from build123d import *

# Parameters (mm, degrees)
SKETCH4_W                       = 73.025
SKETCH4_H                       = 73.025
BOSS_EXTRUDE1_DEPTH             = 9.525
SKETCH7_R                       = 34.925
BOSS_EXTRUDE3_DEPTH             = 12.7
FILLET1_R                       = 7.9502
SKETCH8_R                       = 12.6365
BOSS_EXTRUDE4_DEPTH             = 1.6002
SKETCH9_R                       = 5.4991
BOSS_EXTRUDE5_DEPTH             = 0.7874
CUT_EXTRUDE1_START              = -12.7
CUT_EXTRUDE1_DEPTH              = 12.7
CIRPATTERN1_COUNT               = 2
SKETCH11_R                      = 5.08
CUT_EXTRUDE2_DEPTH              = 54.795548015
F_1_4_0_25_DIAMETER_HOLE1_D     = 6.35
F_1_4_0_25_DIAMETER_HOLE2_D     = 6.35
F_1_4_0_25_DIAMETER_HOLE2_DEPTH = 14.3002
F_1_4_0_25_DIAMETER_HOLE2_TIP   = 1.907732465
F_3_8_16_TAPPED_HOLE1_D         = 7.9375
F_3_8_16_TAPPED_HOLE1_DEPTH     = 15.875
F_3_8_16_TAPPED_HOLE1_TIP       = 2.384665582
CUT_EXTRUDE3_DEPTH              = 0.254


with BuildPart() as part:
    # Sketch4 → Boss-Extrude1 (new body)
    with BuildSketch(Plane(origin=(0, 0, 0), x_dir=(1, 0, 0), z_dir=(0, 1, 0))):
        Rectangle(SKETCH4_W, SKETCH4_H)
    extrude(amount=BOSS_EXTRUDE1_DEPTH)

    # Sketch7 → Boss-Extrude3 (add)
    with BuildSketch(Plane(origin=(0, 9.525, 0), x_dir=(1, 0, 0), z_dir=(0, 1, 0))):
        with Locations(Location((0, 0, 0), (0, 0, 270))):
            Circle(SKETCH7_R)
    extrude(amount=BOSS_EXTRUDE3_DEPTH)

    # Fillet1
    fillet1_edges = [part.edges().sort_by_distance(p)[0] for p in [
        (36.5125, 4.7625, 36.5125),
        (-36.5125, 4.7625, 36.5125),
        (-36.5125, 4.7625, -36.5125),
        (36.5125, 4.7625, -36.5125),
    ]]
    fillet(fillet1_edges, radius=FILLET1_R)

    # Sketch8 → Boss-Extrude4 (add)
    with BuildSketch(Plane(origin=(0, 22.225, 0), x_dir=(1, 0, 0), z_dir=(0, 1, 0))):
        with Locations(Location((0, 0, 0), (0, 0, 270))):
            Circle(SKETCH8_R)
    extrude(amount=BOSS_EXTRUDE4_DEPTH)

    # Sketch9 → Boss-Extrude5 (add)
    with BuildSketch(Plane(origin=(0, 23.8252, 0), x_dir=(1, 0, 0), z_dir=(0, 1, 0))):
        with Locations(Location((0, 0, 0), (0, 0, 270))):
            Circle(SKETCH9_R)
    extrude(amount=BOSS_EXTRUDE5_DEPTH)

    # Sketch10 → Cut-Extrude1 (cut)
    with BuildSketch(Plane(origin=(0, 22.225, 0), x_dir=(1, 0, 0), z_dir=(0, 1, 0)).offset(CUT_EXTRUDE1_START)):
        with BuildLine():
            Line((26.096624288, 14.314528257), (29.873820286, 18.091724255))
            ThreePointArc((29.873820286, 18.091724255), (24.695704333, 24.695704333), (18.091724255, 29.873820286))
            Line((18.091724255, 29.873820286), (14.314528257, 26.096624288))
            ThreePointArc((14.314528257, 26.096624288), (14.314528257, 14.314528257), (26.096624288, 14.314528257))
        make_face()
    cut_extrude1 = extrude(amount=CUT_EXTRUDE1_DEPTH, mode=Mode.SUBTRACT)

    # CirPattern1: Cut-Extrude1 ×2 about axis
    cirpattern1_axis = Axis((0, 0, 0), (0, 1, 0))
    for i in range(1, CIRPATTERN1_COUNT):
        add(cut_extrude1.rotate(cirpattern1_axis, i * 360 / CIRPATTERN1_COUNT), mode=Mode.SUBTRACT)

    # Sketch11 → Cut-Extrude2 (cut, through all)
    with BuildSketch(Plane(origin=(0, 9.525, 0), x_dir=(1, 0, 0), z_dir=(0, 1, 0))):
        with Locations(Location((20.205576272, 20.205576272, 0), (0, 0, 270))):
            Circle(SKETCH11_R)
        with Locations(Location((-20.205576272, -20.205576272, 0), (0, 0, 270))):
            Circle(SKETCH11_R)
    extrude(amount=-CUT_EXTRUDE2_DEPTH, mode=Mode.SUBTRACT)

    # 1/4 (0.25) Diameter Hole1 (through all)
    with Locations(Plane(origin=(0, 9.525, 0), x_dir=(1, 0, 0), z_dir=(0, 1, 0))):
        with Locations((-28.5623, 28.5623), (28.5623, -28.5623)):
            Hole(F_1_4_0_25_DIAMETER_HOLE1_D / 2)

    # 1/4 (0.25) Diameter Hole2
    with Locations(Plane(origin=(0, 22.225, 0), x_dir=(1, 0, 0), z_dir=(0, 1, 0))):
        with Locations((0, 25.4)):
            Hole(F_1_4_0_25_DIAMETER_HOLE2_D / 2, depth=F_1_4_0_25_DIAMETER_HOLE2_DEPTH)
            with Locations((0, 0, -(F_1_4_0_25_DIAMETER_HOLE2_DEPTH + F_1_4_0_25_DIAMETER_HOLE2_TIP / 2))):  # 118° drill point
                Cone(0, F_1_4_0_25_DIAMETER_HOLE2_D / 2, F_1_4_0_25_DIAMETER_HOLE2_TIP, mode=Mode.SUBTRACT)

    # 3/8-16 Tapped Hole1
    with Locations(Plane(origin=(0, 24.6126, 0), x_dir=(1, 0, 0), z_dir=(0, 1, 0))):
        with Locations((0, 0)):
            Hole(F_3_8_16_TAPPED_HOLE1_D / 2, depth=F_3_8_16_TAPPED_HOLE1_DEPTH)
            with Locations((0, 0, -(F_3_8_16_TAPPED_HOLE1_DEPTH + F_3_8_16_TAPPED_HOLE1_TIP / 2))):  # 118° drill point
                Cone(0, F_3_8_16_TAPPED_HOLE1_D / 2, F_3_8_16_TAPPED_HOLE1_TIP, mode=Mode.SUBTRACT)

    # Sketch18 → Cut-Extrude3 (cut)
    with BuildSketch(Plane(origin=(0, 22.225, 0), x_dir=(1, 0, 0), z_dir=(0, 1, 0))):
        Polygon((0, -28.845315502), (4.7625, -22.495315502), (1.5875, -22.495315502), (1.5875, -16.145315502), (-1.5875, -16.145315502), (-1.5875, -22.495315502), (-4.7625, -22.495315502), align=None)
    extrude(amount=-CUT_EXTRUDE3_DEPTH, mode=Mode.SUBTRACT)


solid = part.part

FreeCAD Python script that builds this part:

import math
import FreeCAD as App
import Part
import Sketcher

V = App.Vector
Q = App.Units.Quantity


def edges_at(feature, points):
    """Names of the edges that pass closest to the given points."""
    edges = feature.Shape.Edges
    near = lambda p: min(range(len(edges)), key=lambda i: edges[i].distToShape(Part.Vertex(*p))[0])
    return sorted({f"Edge{near(p) + 1}" for p in points})


def add_polygon(sketch, points):
    """Adds a closed chain of lines whose ends are joined by coincident constraints."""
    first, n = sketch.GeometryCount, len(points)
    for a, b in zip(points, points[1:] + points[:1]):
        sketch.addGeometry(Part.LineSegment(App.Vector(*a, 0), App.Vector(*b, 0)), False)
    for i in range(n):
        sketch.addConstraint(Sketcher.Constraint("Coincident", first + i, 2, first + (i + 1) % n, 1))

doc = App.newDocument("Part")
body = doc.addObject("PartDesign::Body", "Body")

# Sketch on XZ plane
sketch1 = doc.addObject("Sketcher::SketchObject", "Sketch")
body.addObject(sketch1)
sketch1.AttachmentSupport = (doc.XZ_Plane, [""])
sketch1.MapMode = "FlatFace"
add_polygon(sketch1, [(-37, -37), (-37, 37), (37, 37), (37, -37)])  # lines 0-3
sketch1.addConstraint(Sketcher.Constraint("Vertical", 0))
sketch1.addConstraint(Sketcher.Constraint("Horizontal", 1))
sketch1.addConstraint(Sketcher.Constraint("Vertical", 2))
sketch1.addConstraint(Sketcher.Constraint("Horizontal", 3))
sketch1.addConstraint(Sketcher.Constraint("Symmetric", 0, 2, 2, 2, -1, 1))
sketch1.addConstraint(Sketcher.Constraint("Equal", 3, 0))
sketch1.addConstraint(Sketcher.Constraint("DistanceX", 1, 1, 1, 2, Q("2.875 in")))
pad1 = doc.addObject("PartDesign::Pad", "Pad")
body.addObject(pad1)
pad1.Profile = sketch1
pad1.Length = Q("0.375 in")
pad1.Reversed = True

# Sketch on XZ plane
sketch2 = doc.addObject("Sketcher::SketchObject", "Sketch001")
body.addObject(sketch2)
sketch2.AttachmentSupport = (doc.XZ_Plane, [""])
sketch2.MapMode = "FlatFace"
sketch2.AttachmentOffset = App.Placement(V(0, 0, -0.375 * 25.4), App.Rotation())
sketch2.addGeometry(Part.Circle(V(0, 0, 0), V(0, 0, 1), 35), False)
sketch2.addConstraint(Sketcher.Constraint("Coincident", 0, 3, -1, 1))
sketch2.addConstraint(Sketcher.Constraint("Diameter", 0, Q("2.75 in")))
pad2 = doc.addObject("PartDesign::Pad", "Pad001")
body.addObject(pad2)
pad2.Profile = sketch2
pad2.Length = Q("0.5 in")
pad2.Reversed = True
doc.recompute()

fillet = doc.addObject("PartDesign::Fillet", "Fillet")
body.addObject(fillet)
fillet.Base = (pad2, edges_at(pad2, [
    (36.513, 4.763, 36.513),
    (-36.513, 4.763, 36.513),
    (-36.513, 4.763, -36.513),
    (36.513, 4.763, -36.513),
]))
fillet.Radius = Q("0.313 in")

# Sketch on XZ plane
sketch3 = doc.addObject("Sketcher::SketchObject", "Sketch002")
body.addObject(sketch3)
sketch3.AttachmentSupport = (doc.XZ_Plane, [""])
sketch3.MapMode = "FlatFace"
sketch3.AttachmentOffset = App.Placement(V(0, 0, -0.875 * 25.4), App.Rotation())
sketch3.addGeometry(Part.Circle(V(0, 0, 0), V(0, 0, 1), 13), False)
sketch3.addConstraint(Sketcher.Constraint("Coincident", 0, 3, -1, 1))
sketch3.addConstraint(Sketcher.Constraint("Diameter", 0, Q("0.995 in")))
pad3 = doc.addObject("PartDesign::Pad", "Pad002")
body.addObject(pad3)
pad3.Profile = sketch3
pad3.Length = Q("0.063 in")
pad3.Reversed = True

# Sketch on XZ plane
sketch4 = doc.addObject("Sketcher::SketchObject", "Sketch003")
body.addObject(sketch4)
sketch4.AttachmentSupport = (doc.XZ_Plane, [""])
sketch4.MapMode = "FlatFace"
sketch4.AttachmentOffset = App.Placement(V(0, 0, -0.938 * 25.4), App.Rotation())
sketch4.addGeometry(Part.Circle(V(0, 0, 0), V(0, 0, 1), 5), False)
sketch4.addConstraint(Sketcher.Constraint("Coincident", 0, 3, -1, 1))
sketch4.addConstraint(Sketcher.Constraint("Diameter", 0, Q("0.433 in")))
pad4 = doc.addObject("PartDesign::Pad", "Pad003")
body.addObject(pad4)
pad4.Profile = sketch4
pad4.Length = Q("0.031 in")
pad4.Reversed = True

# Sketch on XZ plane
sketch5 = doc.addObject("Sketcher::SketchObject", "Sketch004")
body.addObject(sketch5)
sketch5.AttachmentSupport = (doc.XZ_Plane, [""])
sketch5.MapMode = "FlatFace"
sketch5.AttachmentOffset = App.Placement(V(0, 0, -0.375 * 25.4), App.Rotation())
sketch5.addGeometry(Part.LineSegment(V(26, -14, 0), V(30, -18, 0)), False)
sketch5.addGeometry(Part.ArcOfCircle(Part.Circle(V(0, 0, 0), V(0, 0, 1), 35), math.radians(-59), math.radians(-31)), False)
sketch5.addGeometry(Part.LineSegment(V(18, -30, 0), V(14, -26, 0)), False)
sketch5.addGeometry(Part.ArcOfCircle(Part.Circle(V(20, -20, 0), V(0, 0, 1), 8), math.radians(45), math.radians(225)), False)
sketch5.addConstraint(Sketcher.Constraint("Coincident", 0, 2, 1, 2))
sketch5.addConstraint(Sketcher.Constraint("Coincident", 1, 1, 2, 1))
sketch5.addConstraint(Sketcher.Constraint("Tangent", 2, 2, 3, 2))
sketch5.addConstraint(Sketcher.Constraint("Tangent", 3, 1, 0, 1))
sketch5.addConstraint(Sketcher.Constraint("Coincident", 1, 3, -1, 1))
sketch5.addConstraint(Sketcher.Constraint("Parallel", 0, 2))
sketch5.addConstraint(Sketcher.Constraint("Equal", 0, 2))
sketch5.addConstraint(Sketcher.Constraint("Angle", 0, Q("-45 deg")))
sketch5.addConstraint(Sketcher.Constraint("Radius", 1, Q("1.375 in")))
sketch5.addConstraint(Sketcher.Constraint("Radius", 3, Q("0.328 in")))
sketch5.addConstraint(Sketcher.Constraint("DistanceY", 2, 2, 0, 2, 8.0049))
pocket1 = doc.addObject("PartDesign::Pocket", "Pocket")
body.addObject(pocket1)
pocket1.Profile = sketch5
pocket1.Length = Q("0.5 in")
doc.recompute()

polarpattern = doc.addObject("PartDesign::PolarPattern", "PolarPattern")
body.addObject(polarpattern)
polarpattern.Originals = [pocket1]
polarpattern.Axis = (doc.Y_Axis, [""])
polarpattern.Angle = 360
polarpattern.Occurrences = 2
body.Tip = polarpattern

# Sketch on XZ plane
sketch6 = doc.addObject("Sketcher::SketchObject", "Sketch005")
body.addObject(sketch6)
sketch6.AttachmentSupport = (doc.XZ_Plane, [""])
sketch6.MapMode = "FlatFace"
sketch6.AttachmentOffset = App.Placement(V(0, 0, -0.375 * 25.4), App.Rotation())
sketch6.addGeometry(Part.Circle(V(20, -20, 0), V(0, 0, 1), 5), False)
sketch6.addGeometry(Part.Circle(V(-20, 20, 0), V(0, 0, 1), 5), False)
sketch6.addConstraint(Sketcher.Constraint("Equal", 0, 1))
sketch6.addConstraint(Sketcher.Constraint("Symmetric", 0, 3, 1, 3, -1, 1))
sketch6.addConstraint(Sketcher.Constraint("Diameter", 0, Q("0.4 in")))
sketch6.addConstraint(Sketcher.Constraint("DistanceX", -1, 1, 0, 3, 20.205576))
sketch6.addConstraint(Sketcher.Constraint("DistanceY", 0, 3, -1, 1, 20.205576))
pocket2 = doc.addObject("PartDesign::Pocket", "Pocket001")
body.addObject(pocket2)
pocket2.Profile = sketch6
pocket2.Type = "ThroughAll"
pocket2.Reversed = True

# Sketch on XZ plane
sketch7 = doc.addObject("Sketcher::SketchObject", "Sketch006")
body.addObject(sketch7)
sketch7.AttachmentSupport = (doc.XZ_Plane, [""])
sketch7.MapMode = "FlatFace"
sketch7.AttachmentOffset = App.Placement(V(0, 0, -0.375 * 25.4), App.Rotation())
sketch7.addGeometry(Part.Circle(V(-28.6, -28.6, 0), V(0, 0, 1), 3.2), False)
sketch7.addGeometry(Part.Circle(V(28.6, 28.6, 0), V(0, 0, 1), 3.2), False)
sketch7.addConstraint(Sketcher.Constraint("Equal", 0, 1))
sketch7.addConstraint(Sketcher.Constraint("Symmetric", 0, 3, 1, 3, -1, 1))
sketch7.addConstraint(Sketcher.Constraint("Diameter", 0, Q("0.25 in")))
sketch7.addConstraint(Sketcher.Constraint("DistanceX", 0, 3, 1, 3, Q("2.249 in")))
sketch7.addConstraint(Sketcher.Constraint("DistanceY", 0, 3, 1, 3, Q("2.249 in")))
doc.recompute()
hole = doc.addObject("PartDesign::Hole", "Hole")
body.addObject(hole)
hole.Profile = sketch7
hole.ThreadType = "None"
hole.Diameter = Q("0.25 in")
hole.DepthType = "ThroughAll"
hole.Reversed = True

# Sketch on XZ plane
sketch8 = doc.addObject("Sketcher::SketchObject", "Sketch007")
body.addObject(sketch8)
sketch8.AttachmentSupport = (doc.XZ_Plane, [""])
sketch8.MapMode = "FlatFace"
sketch8.AttachmentOffset = App.Placement(V(0, 0, -0.875 * 25.4), App.Rotation())
sketch8.addGeometry(Part.Circle(V(0, -25.4, 0), V(0, 0, 1), 3.2), False)
sketch8.addConstraint(Sketcher.Constraint("PointOnObject", 0, 3, -2))
sketch8.addConstraint(Sketcher.Constraint("Diameter", 0, Q("0.25 in")))
sketch8.addConstraint(Sketcher.Constraint("DistanceY", 0, 3, -1, 1, Q("1 in")))
doc.recompute()
hole2 = doc.addObject("PartDesign::Hole", "Hole001")
body.addObject(hole2)
hole2.Profile = sketch8
hole2.ThreadType = "None"
hole2.Diameter = Q("0.25 in")
hole2.DepthType = "Dimension"
hole2.Depth = Q("0.563 in")
hole2.DrillPoint = "Angled"
hole2.DrillPointAngle = 118
hole2.Reversed = True

# Sketch on XZ plane
sketch9 = doc.addObject("Sketcher::SketchObject", "Sketch008")
body.addObject(sketch9)
sketch9.AttachmentSupport = (doc.XZ_Plane, [""])
sketch9.MapMode = "FlatFace"
sketch9.AttachmentOffset = App.Placement(V(0, 0, -0.969 * 25.4), App.Rotation())
sketch9.addGeometry(Part.Circle(V(0, 0, 0), V(0, 0, 1), 4), False)
sketch9.addConstraint(Sketcher.Constraint("Coincident", 0, 3, -1, 1))
sketch9.addConstraint(Sketcher.Constraint("Diameter", 0, Q("0.3125 in")))
doc.recompute()
hole3 = doc.addObject("PartDesign::Hole", "Hole002")
body.addObject(hole3)
hole3.Profile = sketch9
hole3.ThreadType = "None"
hole3.Diameter = Q("0.3125 in")
hole3.DepthType = "Dimension"
hole3.Depth = Q("0.625 in")
hole3.DrillPoint = "Angled"
hole3.DrillPointAngle = 118
hole3.Reversed = True

# Sketch on XZ plane
sketch10 = doc.addObject("Sketcher::SketchObject", "Sketch009")
body.addObject(sketch10)
sketch10.AttachmentSupport = (doc.XZ_Plane, [""])
sketch10.MapMode = "FlatFace"
sketch10.AttachmentOffset = App.Placement(V(0, 0, -0.875 * 25.4), App.Rotation())
add_polygon(sketch10, [(0, 28.8), (4.8, 22.5), (1.6, 22.5), (1.6, 16.1), (-1.6, 16.1), (-1.6, 22.5), (-4.8, 22.5)])  # lines 0-6
sketch10.addConstraint(Sketcher.Constraint("Horizontal", 1))
sketch10.addConstraint(Sketcher.Constraint("Vertical", 2))
sketch10.addConstraint(Sketcher.Constraint("Horizontal", 3))
sketch10.addConstraint(Sketcher.Constraint("Vertical", 4))
sketch10.addConstraint(Sketcher.Constraint("Horizontal", 5))
sketch10.addConstraint(Sketcher.Constraint("Symmetric", 1, 2, 4, 2, -2))
sketch10.addConstraint(Sketcher.Constraint("PointOnObject", 6, 2, -2))
sketch10.addConstraint(Sketcher.Constraint("Equal", 1, 3))
sketch10.addConstraint(Sketcher.Constraint("Equal", 3, 5))
sketch10.addConstraint(Sketcher.Constraint("DistanceY", 2, 2, 2, 1, Q("0.25 in")))
sketch10.addConstraint(Sketcher.Constraint("DistanceY", 2, 2, 6, 2, Q("0.5 in")))
sketch10.addConstraint(Sketcher.Constraint("DistanceX", 1, 2, 1, 1, Q("0.125 in")))
sketch10.addConstraint(Sketcher.Constraint("DistanceY", -1, 1, 0, 2, 22.495316))
pocket3 = doc.addObject("PartDesign::Pocket", "Pocket002")
body.addObject(pocket3)
pocket3.Profile = sketch10
pocket3.Length = Q("0.01 in")
pocket3.Reversed = True

doc.recompute()
